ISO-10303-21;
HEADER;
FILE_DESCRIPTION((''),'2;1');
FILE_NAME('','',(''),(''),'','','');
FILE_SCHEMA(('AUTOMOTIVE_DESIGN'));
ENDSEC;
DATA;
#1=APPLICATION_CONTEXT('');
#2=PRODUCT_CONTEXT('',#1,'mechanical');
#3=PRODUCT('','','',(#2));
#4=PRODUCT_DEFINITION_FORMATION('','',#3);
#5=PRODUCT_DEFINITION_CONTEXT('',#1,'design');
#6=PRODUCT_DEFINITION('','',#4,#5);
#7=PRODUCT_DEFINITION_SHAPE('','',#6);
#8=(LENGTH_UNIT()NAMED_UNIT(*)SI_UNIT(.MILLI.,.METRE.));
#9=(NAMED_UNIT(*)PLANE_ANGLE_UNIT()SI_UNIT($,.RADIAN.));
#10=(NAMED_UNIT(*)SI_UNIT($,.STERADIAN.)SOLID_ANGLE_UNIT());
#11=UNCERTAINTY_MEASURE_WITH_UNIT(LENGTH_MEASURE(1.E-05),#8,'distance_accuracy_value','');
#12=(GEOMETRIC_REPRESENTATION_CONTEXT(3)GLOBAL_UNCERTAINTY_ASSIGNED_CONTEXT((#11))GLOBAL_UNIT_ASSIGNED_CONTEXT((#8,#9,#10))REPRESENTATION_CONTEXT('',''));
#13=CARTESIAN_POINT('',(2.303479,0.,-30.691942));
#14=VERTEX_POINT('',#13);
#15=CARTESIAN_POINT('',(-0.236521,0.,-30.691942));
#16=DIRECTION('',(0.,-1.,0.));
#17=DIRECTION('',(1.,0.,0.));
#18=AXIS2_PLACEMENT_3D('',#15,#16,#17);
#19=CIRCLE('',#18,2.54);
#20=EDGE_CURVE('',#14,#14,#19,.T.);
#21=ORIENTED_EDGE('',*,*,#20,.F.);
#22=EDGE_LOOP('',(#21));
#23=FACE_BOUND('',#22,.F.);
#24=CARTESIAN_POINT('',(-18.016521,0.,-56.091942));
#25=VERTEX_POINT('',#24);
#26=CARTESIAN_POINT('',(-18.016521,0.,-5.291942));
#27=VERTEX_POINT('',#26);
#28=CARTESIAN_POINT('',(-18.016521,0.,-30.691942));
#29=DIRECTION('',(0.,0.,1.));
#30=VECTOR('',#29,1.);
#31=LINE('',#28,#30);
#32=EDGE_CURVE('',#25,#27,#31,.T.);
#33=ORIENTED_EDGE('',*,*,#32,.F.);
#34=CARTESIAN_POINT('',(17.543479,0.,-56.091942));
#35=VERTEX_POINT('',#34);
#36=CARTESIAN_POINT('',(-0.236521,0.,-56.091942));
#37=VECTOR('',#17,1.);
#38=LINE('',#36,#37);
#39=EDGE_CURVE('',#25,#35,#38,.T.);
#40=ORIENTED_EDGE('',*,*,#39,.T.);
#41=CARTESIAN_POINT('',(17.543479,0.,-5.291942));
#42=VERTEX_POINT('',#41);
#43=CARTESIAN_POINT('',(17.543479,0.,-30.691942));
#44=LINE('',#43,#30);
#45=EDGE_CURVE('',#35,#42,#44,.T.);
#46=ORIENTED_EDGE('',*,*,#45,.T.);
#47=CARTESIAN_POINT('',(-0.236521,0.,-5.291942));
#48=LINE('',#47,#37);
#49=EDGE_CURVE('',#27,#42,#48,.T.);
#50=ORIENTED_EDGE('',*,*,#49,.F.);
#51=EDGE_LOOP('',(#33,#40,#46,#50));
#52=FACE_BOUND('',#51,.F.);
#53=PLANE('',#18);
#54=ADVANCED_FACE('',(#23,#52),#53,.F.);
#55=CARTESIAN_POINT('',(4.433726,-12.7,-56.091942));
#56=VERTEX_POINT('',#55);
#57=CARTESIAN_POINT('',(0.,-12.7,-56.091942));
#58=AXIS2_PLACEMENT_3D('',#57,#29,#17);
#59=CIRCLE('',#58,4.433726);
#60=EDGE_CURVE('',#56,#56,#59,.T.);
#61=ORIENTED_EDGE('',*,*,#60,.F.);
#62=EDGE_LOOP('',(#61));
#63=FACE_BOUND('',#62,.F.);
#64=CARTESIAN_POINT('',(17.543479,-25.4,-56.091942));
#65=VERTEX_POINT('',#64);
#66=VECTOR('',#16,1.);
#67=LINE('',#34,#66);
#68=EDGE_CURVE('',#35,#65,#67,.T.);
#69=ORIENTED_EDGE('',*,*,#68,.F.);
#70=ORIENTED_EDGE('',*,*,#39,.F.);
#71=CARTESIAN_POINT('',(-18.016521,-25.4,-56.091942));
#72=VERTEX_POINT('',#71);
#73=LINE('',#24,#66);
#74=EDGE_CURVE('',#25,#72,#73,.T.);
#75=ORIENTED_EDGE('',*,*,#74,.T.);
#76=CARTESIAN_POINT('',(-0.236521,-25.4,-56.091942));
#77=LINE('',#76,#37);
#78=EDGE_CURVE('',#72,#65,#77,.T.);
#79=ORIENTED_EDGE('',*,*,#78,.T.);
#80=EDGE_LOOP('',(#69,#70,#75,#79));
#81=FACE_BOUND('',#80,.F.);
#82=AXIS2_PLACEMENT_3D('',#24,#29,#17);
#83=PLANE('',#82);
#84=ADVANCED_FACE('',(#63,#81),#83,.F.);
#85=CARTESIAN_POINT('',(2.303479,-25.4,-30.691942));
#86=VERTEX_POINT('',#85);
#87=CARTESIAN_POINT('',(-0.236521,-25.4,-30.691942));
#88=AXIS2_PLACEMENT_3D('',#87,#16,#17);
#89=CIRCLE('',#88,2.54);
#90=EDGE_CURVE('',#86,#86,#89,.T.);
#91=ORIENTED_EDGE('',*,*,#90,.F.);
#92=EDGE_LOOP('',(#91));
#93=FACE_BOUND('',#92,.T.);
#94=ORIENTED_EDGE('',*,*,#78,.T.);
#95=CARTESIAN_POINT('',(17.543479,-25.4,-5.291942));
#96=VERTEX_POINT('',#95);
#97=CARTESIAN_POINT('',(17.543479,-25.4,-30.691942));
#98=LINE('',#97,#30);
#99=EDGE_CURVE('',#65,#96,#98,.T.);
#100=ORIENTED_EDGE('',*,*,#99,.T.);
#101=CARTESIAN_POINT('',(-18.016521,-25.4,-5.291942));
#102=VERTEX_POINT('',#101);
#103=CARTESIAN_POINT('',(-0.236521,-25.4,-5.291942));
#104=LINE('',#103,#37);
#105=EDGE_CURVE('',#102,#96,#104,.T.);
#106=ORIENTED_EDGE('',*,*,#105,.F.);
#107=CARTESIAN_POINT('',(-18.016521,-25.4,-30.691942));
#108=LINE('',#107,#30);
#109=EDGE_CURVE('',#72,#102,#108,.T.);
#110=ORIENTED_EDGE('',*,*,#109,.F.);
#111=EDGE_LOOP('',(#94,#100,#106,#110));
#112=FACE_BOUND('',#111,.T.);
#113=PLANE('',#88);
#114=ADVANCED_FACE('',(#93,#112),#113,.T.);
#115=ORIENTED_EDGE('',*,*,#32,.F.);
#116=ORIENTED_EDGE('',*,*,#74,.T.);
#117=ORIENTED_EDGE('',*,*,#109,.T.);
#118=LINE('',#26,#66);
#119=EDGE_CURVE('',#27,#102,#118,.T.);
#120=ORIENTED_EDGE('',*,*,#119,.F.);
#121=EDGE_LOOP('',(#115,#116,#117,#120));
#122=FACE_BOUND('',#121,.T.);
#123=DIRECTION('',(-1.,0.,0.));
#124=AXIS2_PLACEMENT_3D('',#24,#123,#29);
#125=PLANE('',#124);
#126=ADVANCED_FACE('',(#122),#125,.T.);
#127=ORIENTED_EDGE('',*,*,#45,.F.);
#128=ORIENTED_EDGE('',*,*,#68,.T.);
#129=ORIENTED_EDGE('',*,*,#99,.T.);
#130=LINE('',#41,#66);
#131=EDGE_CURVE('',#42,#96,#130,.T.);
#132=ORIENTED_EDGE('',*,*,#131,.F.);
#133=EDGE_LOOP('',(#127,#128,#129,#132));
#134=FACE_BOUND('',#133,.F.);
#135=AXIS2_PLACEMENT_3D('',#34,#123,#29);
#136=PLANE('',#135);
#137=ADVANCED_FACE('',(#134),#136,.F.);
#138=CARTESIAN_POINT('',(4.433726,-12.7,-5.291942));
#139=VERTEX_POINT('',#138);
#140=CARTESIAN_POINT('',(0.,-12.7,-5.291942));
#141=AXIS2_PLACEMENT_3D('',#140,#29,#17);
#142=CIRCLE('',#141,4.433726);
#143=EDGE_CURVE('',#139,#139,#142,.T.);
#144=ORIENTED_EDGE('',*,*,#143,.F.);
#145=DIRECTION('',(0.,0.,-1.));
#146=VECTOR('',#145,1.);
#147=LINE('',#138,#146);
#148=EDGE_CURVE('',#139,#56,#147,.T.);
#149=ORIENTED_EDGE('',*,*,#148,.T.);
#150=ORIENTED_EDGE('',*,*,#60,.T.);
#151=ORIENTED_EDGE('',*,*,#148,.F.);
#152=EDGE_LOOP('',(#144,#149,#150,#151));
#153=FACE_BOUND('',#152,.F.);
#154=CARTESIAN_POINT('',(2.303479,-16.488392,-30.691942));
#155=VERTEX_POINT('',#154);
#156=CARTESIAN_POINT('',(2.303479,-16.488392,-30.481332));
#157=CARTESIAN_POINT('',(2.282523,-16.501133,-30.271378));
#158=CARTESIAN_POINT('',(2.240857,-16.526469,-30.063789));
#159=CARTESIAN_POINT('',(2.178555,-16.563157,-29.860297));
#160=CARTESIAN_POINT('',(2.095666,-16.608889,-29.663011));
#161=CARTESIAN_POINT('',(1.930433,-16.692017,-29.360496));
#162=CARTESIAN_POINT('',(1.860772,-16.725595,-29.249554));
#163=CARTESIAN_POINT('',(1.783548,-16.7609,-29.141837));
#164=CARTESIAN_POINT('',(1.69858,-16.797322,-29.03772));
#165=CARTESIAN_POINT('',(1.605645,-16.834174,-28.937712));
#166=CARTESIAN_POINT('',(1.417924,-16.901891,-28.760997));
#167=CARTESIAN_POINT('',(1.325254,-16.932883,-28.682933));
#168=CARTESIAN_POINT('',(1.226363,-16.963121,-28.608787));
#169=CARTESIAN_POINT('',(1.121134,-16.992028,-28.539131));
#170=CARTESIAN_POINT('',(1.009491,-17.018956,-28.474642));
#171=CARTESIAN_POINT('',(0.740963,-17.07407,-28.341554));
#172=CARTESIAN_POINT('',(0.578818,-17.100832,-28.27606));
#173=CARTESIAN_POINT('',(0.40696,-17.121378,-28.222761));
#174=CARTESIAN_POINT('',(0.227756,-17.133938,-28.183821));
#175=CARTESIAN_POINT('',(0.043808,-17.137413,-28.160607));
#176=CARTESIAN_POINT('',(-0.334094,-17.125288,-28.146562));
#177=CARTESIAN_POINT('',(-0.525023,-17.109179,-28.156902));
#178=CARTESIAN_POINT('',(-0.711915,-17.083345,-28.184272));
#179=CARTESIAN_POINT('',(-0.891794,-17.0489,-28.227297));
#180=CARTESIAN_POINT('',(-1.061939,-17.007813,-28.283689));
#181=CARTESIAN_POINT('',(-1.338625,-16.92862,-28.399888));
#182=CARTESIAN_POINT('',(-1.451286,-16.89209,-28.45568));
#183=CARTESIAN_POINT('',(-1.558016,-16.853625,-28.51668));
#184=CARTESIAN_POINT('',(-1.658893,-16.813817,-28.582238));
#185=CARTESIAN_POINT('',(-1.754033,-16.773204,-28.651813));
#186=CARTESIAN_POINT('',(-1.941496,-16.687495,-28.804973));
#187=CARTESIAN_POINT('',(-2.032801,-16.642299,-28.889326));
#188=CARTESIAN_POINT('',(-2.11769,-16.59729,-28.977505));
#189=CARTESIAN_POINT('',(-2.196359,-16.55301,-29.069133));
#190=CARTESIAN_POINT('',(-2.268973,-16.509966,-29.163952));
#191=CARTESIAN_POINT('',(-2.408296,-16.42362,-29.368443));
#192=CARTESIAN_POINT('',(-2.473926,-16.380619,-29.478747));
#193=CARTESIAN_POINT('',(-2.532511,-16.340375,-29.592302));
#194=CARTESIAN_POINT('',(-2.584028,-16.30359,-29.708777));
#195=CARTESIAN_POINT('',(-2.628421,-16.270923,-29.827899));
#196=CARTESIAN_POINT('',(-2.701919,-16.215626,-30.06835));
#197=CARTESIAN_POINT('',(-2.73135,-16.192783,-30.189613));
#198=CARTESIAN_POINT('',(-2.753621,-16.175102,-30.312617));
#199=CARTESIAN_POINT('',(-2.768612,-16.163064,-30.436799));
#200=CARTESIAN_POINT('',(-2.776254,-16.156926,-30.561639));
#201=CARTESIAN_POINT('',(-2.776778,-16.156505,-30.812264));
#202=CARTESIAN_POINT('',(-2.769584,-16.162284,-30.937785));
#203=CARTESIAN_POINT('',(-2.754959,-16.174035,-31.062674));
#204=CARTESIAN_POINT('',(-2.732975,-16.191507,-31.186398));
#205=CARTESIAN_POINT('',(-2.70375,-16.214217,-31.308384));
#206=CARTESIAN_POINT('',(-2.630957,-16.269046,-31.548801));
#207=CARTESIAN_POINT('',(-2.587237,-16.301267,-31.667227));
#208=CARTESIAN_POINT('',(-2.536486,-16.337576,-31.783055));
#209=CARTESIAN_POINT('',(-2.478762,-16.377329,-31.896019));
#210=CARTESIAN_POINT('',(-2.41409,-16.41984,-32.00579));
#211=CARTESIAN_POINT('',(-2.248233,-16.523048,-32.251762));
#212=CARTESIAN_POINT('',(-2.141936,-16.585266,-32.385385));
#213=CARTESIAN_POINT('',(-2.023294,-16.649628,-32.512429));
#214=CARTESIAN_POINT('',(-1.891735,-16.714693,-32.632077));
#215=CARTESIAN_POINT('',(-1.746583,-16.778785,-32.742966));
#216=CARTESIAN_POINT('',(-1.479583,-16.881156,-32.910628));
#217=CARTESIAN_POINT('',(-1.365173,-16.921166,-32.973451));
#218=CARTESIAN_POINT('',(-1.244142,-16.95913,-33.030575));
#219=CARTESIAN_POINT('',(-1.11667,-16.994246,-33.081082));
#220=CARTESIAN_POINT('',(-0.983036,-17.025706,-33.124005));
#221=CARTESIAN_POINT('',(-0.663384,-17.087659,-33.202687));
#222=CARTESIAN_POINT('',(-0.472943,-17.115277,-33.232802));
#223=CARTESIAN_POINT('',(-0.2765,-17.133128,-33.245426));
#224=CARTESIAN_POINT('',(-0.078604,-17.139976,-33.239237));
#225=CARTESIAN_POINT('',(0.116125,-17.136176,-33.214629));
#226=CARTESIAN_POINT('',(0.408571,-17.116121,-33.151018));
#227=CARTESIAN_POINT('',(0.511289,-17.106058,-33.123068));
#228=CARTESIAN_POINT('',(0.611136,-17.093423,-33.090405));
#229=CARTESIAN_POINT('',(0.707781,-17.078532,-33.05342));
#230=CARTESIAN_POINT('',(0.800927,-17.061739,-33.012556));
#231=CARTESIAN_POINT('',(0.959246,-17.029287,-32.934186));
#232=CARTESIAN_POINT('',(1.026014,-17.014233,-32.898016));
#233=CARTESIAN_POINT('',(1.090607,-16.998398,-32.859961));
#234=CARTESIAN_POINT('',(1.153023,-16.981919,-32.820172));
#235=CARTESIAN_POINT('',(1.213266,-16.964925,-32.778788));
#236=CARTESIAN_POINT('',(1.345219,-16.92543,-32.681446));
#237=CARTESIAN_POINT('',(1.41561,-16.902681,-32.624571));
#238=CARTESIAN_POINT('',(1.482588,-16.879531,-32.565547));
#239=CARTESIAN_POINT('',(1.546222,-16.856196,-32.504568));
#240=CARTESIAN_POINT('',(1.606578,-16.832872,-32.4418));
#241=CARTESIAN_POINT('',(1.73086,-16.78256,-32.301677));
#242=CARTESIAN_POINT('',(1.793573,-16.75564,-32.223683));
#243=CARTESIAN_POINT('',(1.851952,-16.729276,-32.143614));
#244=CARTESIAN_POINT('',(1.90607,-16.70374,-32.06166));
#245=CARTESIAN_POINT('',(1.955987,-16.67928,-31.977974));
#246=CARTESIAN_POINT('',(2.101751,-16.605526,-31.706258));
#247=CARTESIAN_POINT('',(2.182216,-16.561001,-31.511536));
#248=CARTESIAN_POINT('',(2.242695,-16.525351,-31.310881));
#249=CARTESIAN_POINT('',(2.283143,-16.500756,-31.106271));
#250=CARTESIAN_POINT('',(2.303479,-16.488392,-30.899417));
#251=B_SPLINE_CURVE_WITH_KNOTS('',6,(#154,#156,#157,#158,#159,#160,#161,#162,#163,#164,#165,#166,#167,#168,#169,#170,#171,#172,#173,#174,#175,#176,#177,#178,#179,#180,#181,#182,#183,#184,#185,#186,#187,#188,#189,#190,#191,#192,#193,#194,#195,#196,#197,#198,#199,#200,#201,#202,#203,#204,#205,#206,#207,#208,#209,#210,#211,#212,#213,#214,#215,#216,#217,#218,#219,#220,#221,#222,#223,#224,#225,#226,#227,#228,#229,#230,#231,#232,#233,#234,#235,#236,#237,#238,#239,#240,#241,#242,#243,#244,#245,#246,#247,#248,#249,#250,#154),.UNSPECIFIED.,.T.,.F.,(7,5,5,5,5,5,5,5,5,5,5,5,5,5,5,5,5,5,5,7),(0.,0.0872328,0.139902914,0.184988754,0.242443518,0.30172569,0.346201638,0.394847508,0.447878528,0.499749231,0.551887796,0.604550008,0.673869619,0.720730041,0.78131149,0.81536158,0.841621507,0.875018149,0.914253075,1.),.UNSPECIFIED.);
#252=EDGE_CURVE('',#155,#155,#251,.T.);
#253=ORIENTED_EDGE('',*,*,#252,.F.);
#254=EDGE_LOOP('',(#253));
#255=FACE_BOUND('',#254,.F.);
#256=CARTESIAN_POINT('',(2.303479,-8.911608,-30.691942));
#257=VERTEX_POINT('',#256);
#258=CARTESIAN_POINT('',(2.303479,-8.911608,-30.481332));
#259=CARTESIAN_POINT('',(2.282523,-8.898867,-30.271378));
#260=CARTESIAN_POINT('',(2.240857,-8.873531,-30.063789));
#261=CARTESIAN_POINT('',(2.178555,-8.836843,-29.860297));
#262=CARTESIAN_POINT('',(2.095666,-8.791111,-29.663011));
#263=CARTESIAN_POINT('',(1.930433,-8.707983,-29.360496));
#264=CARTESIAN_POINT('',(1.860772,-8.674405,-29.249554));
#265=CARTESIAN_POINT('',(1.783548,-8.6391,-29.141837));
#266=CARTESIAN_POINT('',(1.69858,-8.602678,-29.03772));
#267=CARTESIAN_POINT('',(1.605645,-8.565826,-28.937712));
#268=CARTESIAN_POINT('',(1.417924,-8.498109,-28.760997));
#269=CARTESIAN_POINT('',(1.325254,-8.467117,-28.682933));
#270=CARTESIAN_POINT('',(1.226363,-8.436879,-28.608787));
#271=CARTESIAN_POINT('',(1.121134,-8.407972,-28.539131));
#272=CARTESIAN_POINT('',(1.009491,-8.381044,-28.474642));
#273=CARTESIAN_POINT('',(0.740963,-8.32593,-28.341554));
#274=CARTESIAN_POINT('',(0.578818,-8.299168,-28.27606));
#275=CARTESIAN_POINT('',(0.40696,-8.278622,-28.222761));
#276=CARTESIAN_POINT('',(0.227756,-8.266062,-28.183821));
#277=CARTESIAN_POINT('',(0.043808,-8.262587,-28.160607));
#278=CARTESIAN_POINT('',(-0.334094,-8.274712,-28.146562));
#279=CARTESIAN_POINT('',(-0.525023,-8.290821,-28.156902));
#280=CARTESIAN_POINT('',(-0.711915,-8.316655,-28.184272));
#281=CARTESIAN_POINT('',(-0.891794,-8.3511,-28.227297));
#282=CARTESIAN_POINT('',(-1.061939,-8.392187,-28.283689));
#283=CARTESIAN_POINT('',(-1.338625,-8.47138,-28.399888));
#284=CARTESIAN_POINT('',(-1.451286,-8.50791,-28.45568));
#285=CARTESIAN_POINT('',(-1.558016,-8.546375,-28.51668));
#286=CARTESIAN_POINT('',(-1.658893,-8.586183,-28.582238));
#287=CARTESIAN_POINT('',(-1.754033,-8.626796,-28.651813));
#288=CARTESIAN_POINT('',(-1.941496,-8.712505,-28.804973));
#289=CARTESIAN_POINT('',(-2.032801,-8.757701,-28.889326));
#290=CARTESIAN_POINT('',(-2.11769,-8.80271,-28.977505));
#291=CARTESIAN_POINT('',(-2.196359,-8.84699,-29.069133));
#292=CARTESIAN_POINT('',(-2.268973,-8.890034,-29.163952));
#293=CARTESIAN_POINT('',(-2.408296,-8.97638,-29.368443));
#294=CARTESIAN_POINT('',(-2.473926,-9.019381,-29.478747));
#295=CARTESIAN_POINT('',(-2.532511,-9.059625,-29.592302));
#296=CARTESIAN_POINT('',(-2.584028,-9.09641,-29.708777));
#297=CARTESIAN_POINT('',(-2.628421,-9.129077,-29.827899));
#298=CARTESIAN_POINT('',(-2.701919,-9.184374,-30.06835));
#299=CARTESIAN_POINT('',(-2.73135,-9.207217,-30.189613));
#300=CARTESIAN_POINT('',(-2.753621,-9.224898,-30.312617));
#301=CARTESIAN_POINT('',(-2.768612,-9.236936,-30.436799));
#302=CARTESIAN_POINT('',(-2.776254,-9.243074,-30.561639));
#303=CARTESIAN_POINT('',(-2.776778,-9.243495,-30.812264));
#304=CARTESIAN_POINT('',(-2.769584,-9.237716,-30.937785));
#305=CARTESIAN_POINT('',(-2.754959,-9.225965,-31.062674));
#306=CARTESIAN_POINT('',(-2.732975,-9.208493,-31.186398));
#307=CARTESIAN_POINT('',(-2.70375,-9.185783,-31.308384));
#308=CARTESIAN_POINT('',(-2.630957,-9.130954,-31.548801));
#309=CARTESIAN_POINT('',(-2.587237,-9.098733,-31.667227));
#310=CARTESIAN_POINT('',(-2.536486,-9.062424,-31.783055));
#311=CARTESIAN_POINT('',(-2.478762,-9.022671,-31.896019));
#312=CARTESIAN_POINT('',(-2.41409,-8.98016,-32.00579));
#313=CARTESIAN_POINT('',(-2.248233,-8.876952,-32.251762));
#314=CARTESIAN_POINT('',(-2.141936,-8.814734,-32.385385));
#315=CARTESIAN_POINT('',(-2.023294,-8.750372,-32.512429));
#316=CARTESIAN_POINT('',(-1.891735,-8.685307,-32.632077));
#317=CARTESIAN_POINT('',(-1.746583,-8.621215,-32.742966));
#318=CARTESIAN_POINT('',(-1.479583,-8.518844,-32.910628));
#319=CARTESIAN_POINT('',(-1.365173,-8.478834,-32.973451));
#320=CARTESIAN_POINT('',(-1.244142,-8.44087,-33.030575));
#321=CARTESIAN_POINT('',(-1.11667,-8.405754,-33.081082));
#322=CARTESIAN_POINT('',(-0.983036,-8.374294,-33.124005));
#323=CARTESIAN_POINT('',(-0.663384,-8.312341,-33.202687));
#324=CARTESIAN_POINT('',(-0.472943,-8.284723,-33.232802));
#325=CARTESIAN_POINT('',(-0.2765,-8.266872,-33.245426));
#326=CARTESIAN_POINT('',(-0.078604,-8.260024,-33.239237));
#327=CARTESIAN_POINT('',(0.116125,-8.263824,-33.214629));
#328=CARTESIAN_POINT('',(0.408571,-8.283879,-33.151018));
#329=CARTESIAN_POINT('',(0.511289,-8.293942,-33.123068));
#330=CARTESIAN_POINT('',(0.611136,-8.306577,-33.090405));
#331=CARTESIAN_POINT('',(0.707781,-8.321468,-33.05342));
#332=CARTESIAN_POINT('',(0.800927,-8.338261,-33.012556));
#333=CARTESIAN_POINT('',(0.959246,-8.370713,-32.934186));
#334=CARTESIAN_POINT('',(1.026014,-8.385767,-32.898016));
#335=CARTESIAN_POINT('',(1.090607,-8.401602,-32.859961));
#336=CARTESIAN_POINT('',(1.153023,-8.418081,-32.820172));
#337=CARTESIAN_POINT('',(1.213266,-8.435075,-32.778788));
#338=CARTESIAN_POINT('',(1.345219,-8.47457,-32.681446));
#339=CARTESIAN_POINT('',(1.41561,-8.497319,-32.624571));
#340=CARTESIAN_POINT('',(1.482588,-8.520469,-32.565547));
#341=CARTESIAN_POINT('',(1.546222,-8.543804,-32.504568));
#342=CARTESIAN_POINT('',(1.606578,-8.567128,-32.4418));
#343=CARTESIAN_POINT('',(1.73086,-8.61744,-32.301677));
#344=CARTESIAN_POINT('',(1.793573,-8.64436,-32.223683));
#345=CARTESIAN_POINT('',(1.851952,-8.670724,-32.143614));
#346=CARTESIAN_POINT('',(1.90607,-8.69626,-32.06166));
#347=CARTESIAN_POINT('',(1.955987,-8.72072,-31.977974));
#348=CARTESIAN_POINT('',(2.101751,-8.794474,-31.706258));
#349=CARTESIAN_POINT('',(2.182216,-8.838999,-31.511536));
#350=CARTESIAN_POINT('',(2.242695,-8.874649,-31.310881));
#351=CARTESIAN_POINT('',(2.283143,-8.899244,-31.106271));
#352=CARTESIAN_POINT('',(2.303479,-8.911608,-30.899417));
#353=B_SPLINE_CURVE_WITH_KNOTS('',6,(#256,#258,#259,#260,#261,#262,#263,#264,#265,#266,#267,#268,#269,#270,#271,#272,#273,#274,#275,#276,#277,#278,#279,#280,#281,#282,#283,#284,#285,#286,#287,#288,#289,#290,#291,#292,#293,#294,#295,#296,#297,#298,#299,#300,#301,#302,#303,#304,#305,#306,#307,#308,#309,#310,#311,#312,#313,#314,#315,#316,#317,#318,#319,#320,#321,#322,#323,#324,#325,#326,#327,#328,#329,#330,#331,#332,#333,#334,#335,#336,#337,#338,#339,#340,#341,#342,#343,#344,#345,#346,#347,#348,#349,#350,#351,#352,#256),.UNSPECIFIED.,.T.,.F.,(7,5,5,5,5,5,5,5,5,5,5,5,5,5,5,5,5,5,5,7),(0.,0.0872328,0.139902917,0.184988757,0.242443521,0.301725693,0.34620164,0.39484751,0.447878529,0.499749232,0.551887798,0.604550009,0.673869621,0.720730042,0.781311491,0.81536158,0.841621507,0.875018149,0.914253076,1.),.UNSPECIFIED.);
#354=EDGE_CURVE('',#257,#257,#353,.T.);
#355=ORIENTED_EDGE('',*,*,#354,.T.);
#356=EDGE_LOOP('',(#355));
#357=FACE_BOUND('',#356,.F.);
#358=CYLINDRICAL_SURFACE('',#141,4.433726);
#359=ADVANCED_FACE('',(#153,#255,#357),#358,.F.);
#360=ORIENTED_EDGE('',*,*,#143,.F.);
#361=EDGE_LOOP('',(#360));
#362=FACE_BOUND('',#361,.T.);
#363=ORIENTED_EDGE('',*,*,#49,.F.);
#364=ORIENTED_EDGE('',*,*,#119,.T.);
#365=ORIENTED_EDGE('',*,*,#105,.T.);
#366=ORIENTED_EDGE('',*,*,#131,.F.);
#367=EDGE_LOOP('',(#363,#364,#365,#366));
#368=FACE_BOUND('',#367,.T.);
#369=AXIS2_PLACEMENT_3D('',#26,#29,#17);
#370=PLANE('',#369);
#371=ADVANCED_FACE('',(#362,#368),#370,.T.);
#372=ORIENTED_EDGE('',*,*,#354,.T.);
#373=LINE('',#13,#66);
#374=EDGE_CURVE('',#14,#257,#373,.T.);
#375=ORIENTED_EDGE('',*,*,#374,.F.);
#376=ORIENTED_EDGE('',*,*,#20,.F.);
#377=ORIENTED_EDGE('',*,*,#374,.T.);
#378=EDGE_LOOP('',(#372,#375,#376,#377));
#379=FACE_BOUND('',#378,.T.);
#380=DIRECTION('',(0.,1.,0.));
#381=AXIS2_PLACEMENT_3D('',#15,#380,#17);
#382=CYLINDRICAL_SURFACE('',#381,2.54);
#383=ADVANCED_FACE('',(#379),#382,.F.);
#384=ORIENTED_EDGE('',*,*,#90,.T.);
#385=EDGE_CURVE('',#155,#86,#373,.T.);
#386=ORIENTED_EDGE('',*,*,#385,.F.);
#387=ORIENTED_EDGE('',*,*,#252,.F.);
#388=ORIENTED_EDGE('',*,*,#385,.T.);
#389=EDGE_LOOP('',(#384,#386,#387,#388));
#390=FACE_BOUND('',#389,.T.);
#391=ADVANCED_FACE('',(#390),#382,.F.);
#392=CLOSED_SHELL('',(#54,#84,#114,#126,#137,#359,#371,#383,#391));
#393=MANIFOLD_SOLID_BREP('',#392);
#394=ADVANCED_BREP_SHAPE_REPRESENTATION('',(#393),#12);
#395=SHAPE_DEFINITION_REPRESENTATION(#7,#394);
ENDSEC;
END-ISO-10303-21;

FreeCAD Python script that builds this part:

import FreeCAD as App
import Part
import Sketcher
from FreeCAD import Vector
Q = App.Units.Quantity


def add_polygon(sketch, points):
    """Adds a closed chain of lines whose ends are joined by coincident constraints."""
    first, n = sketch.GeometryCount, len(points)
    for a, b in zip(points, points[1:] + points[:1]):
        sketch.addGeometry(Part.LineSegment(App.Vector(*a, 0), App.Vector(*b, 0)), False)
    for i in range(n):
        sketch.addConstraint(Sketcher.Constraint("Coincident", first + i, 2, first + (i + 1) % n, 1))

doc = App.newDocument("Part")
params = doc.addObject("Spreadsheet::Sheet", "Params")
for row, (alias, value) in enumerate([
    ("sketch1_diameter", "0.2 in"),
    ("sketch1_height", "2 in"),
    ("sketch1_width", "1.4 in"),
    ("pad1_length", "1 in"),
    ("pocket1_length", "5 in"),
], start=1):
    params.set(f"A{row}", alias)
    params.set(f"B{row}", "=" + value)
    params.setAlias(f"B{row}", alias)

body = doc.addObject("PartDesign::Body", "Body")

# Sketch on XZ plane
sketch1 = body.newObject("Sketcher::SketchObject", "Sketch")
sketch1.AttachmentSupport = (doc.getObject("XZ_Plane"), [""])
sketch1.MapMode = "FlatFace"
add_polygon(sketch1, [(-18, -5.3), (-18, -56.1), (17.5, -56.1), (17.5, -5.3)])  # lines 0-3
sketch1.addGeometry(Part.Circle(Vector(-0.2, -30.7, 0), Vector(0, 0, 1), 2.5), False)  # 4
sketch1.addConstraint(Sketcher.Constraint("Vertical", 0))
sketch1.addConstraint(Sketcher.Constraint("Horizontal", 1))
sketch1.addConstraint(Sketcher.Constraint("Vertical", 2))
sketch1.addConstraint(Sketcher.Constraint("Horizontal", 3))
sketch1.addConstraint(Sketcher.Constraint("Diameter", 4, Q("0.2 in")))
sketch1.addConstraint(Sketcher.Constraint("DistanceY", 0, 2, 0, 1, Q("2 in")))
sketch1.addConstraint(Sketcher.Constraint("DistanceX", 1, 1, 1, 2, Q("1.4 in")))
sketch1.addConstraint(Sketcher.Constraint("DistanceY", 0, 2, 4, 3, Q("1 in")))
sketch1.addConstraint(Sketcher.Constraint("DistanceX", 0, 2, 4, 3, Q("0.7 in")))
sketch1.addConstraint(Sketcher.Constraint("DistanceX", 4, 3, -1, 1, 0.236521))
sketch1.addConstraint(Sketcher.Constraint("DistanceY", 2, 2, -1, 1, 5.291942))
sketch1.setExpression("Constraints[8]", "Params.sketch1_diameter")
sketch1.setExpression("Constraints[9]", "Params.sketch1_height")
sketch1.setExpression("Constraints[10]", "Params.sketch1_width")
pad1 = body.newObject("PartDesign::Pad", "Pad")
pad1.Profile = sketch1
pad1.setExpression("Length", "Params.pad1_length")

# Sketch on XY plane
sketch2 = body.newObject("Sketcher::SketchObject", "Sketch001")
sketch2.AttachmentSupport = (doc.getObject("XY_Plane"), [""])
sketch2.MapMode = "FlatFace"
sketch2.AttachmentOffset = App.Placement(Vector(0, 0, -5.291942), App.Rotation())
sketch2.addGeometry(Part.Circle(Vector(0, -12.7, 0), Vector(0, 0, 1), 4.4), False)
sketch2.addConstraint(Sketcher.Constraint("PointOnObject", 0, 3, -2))
sketch2.addConstraint(Sketcher.Constraint("DistanceY", 0, 3, -1, 1, Q("0.5 in")))
sketch2.addConstraint(Sketcher.Constraint("Diameter", 0, 8.867452))
pocket1 = body.newObject("PartDesign::Pocket", "Pocket")
pocket1.Profile = sketch2
pocket1.setExpression("Length", "Params.pocket1_length")

doc.recompute()
